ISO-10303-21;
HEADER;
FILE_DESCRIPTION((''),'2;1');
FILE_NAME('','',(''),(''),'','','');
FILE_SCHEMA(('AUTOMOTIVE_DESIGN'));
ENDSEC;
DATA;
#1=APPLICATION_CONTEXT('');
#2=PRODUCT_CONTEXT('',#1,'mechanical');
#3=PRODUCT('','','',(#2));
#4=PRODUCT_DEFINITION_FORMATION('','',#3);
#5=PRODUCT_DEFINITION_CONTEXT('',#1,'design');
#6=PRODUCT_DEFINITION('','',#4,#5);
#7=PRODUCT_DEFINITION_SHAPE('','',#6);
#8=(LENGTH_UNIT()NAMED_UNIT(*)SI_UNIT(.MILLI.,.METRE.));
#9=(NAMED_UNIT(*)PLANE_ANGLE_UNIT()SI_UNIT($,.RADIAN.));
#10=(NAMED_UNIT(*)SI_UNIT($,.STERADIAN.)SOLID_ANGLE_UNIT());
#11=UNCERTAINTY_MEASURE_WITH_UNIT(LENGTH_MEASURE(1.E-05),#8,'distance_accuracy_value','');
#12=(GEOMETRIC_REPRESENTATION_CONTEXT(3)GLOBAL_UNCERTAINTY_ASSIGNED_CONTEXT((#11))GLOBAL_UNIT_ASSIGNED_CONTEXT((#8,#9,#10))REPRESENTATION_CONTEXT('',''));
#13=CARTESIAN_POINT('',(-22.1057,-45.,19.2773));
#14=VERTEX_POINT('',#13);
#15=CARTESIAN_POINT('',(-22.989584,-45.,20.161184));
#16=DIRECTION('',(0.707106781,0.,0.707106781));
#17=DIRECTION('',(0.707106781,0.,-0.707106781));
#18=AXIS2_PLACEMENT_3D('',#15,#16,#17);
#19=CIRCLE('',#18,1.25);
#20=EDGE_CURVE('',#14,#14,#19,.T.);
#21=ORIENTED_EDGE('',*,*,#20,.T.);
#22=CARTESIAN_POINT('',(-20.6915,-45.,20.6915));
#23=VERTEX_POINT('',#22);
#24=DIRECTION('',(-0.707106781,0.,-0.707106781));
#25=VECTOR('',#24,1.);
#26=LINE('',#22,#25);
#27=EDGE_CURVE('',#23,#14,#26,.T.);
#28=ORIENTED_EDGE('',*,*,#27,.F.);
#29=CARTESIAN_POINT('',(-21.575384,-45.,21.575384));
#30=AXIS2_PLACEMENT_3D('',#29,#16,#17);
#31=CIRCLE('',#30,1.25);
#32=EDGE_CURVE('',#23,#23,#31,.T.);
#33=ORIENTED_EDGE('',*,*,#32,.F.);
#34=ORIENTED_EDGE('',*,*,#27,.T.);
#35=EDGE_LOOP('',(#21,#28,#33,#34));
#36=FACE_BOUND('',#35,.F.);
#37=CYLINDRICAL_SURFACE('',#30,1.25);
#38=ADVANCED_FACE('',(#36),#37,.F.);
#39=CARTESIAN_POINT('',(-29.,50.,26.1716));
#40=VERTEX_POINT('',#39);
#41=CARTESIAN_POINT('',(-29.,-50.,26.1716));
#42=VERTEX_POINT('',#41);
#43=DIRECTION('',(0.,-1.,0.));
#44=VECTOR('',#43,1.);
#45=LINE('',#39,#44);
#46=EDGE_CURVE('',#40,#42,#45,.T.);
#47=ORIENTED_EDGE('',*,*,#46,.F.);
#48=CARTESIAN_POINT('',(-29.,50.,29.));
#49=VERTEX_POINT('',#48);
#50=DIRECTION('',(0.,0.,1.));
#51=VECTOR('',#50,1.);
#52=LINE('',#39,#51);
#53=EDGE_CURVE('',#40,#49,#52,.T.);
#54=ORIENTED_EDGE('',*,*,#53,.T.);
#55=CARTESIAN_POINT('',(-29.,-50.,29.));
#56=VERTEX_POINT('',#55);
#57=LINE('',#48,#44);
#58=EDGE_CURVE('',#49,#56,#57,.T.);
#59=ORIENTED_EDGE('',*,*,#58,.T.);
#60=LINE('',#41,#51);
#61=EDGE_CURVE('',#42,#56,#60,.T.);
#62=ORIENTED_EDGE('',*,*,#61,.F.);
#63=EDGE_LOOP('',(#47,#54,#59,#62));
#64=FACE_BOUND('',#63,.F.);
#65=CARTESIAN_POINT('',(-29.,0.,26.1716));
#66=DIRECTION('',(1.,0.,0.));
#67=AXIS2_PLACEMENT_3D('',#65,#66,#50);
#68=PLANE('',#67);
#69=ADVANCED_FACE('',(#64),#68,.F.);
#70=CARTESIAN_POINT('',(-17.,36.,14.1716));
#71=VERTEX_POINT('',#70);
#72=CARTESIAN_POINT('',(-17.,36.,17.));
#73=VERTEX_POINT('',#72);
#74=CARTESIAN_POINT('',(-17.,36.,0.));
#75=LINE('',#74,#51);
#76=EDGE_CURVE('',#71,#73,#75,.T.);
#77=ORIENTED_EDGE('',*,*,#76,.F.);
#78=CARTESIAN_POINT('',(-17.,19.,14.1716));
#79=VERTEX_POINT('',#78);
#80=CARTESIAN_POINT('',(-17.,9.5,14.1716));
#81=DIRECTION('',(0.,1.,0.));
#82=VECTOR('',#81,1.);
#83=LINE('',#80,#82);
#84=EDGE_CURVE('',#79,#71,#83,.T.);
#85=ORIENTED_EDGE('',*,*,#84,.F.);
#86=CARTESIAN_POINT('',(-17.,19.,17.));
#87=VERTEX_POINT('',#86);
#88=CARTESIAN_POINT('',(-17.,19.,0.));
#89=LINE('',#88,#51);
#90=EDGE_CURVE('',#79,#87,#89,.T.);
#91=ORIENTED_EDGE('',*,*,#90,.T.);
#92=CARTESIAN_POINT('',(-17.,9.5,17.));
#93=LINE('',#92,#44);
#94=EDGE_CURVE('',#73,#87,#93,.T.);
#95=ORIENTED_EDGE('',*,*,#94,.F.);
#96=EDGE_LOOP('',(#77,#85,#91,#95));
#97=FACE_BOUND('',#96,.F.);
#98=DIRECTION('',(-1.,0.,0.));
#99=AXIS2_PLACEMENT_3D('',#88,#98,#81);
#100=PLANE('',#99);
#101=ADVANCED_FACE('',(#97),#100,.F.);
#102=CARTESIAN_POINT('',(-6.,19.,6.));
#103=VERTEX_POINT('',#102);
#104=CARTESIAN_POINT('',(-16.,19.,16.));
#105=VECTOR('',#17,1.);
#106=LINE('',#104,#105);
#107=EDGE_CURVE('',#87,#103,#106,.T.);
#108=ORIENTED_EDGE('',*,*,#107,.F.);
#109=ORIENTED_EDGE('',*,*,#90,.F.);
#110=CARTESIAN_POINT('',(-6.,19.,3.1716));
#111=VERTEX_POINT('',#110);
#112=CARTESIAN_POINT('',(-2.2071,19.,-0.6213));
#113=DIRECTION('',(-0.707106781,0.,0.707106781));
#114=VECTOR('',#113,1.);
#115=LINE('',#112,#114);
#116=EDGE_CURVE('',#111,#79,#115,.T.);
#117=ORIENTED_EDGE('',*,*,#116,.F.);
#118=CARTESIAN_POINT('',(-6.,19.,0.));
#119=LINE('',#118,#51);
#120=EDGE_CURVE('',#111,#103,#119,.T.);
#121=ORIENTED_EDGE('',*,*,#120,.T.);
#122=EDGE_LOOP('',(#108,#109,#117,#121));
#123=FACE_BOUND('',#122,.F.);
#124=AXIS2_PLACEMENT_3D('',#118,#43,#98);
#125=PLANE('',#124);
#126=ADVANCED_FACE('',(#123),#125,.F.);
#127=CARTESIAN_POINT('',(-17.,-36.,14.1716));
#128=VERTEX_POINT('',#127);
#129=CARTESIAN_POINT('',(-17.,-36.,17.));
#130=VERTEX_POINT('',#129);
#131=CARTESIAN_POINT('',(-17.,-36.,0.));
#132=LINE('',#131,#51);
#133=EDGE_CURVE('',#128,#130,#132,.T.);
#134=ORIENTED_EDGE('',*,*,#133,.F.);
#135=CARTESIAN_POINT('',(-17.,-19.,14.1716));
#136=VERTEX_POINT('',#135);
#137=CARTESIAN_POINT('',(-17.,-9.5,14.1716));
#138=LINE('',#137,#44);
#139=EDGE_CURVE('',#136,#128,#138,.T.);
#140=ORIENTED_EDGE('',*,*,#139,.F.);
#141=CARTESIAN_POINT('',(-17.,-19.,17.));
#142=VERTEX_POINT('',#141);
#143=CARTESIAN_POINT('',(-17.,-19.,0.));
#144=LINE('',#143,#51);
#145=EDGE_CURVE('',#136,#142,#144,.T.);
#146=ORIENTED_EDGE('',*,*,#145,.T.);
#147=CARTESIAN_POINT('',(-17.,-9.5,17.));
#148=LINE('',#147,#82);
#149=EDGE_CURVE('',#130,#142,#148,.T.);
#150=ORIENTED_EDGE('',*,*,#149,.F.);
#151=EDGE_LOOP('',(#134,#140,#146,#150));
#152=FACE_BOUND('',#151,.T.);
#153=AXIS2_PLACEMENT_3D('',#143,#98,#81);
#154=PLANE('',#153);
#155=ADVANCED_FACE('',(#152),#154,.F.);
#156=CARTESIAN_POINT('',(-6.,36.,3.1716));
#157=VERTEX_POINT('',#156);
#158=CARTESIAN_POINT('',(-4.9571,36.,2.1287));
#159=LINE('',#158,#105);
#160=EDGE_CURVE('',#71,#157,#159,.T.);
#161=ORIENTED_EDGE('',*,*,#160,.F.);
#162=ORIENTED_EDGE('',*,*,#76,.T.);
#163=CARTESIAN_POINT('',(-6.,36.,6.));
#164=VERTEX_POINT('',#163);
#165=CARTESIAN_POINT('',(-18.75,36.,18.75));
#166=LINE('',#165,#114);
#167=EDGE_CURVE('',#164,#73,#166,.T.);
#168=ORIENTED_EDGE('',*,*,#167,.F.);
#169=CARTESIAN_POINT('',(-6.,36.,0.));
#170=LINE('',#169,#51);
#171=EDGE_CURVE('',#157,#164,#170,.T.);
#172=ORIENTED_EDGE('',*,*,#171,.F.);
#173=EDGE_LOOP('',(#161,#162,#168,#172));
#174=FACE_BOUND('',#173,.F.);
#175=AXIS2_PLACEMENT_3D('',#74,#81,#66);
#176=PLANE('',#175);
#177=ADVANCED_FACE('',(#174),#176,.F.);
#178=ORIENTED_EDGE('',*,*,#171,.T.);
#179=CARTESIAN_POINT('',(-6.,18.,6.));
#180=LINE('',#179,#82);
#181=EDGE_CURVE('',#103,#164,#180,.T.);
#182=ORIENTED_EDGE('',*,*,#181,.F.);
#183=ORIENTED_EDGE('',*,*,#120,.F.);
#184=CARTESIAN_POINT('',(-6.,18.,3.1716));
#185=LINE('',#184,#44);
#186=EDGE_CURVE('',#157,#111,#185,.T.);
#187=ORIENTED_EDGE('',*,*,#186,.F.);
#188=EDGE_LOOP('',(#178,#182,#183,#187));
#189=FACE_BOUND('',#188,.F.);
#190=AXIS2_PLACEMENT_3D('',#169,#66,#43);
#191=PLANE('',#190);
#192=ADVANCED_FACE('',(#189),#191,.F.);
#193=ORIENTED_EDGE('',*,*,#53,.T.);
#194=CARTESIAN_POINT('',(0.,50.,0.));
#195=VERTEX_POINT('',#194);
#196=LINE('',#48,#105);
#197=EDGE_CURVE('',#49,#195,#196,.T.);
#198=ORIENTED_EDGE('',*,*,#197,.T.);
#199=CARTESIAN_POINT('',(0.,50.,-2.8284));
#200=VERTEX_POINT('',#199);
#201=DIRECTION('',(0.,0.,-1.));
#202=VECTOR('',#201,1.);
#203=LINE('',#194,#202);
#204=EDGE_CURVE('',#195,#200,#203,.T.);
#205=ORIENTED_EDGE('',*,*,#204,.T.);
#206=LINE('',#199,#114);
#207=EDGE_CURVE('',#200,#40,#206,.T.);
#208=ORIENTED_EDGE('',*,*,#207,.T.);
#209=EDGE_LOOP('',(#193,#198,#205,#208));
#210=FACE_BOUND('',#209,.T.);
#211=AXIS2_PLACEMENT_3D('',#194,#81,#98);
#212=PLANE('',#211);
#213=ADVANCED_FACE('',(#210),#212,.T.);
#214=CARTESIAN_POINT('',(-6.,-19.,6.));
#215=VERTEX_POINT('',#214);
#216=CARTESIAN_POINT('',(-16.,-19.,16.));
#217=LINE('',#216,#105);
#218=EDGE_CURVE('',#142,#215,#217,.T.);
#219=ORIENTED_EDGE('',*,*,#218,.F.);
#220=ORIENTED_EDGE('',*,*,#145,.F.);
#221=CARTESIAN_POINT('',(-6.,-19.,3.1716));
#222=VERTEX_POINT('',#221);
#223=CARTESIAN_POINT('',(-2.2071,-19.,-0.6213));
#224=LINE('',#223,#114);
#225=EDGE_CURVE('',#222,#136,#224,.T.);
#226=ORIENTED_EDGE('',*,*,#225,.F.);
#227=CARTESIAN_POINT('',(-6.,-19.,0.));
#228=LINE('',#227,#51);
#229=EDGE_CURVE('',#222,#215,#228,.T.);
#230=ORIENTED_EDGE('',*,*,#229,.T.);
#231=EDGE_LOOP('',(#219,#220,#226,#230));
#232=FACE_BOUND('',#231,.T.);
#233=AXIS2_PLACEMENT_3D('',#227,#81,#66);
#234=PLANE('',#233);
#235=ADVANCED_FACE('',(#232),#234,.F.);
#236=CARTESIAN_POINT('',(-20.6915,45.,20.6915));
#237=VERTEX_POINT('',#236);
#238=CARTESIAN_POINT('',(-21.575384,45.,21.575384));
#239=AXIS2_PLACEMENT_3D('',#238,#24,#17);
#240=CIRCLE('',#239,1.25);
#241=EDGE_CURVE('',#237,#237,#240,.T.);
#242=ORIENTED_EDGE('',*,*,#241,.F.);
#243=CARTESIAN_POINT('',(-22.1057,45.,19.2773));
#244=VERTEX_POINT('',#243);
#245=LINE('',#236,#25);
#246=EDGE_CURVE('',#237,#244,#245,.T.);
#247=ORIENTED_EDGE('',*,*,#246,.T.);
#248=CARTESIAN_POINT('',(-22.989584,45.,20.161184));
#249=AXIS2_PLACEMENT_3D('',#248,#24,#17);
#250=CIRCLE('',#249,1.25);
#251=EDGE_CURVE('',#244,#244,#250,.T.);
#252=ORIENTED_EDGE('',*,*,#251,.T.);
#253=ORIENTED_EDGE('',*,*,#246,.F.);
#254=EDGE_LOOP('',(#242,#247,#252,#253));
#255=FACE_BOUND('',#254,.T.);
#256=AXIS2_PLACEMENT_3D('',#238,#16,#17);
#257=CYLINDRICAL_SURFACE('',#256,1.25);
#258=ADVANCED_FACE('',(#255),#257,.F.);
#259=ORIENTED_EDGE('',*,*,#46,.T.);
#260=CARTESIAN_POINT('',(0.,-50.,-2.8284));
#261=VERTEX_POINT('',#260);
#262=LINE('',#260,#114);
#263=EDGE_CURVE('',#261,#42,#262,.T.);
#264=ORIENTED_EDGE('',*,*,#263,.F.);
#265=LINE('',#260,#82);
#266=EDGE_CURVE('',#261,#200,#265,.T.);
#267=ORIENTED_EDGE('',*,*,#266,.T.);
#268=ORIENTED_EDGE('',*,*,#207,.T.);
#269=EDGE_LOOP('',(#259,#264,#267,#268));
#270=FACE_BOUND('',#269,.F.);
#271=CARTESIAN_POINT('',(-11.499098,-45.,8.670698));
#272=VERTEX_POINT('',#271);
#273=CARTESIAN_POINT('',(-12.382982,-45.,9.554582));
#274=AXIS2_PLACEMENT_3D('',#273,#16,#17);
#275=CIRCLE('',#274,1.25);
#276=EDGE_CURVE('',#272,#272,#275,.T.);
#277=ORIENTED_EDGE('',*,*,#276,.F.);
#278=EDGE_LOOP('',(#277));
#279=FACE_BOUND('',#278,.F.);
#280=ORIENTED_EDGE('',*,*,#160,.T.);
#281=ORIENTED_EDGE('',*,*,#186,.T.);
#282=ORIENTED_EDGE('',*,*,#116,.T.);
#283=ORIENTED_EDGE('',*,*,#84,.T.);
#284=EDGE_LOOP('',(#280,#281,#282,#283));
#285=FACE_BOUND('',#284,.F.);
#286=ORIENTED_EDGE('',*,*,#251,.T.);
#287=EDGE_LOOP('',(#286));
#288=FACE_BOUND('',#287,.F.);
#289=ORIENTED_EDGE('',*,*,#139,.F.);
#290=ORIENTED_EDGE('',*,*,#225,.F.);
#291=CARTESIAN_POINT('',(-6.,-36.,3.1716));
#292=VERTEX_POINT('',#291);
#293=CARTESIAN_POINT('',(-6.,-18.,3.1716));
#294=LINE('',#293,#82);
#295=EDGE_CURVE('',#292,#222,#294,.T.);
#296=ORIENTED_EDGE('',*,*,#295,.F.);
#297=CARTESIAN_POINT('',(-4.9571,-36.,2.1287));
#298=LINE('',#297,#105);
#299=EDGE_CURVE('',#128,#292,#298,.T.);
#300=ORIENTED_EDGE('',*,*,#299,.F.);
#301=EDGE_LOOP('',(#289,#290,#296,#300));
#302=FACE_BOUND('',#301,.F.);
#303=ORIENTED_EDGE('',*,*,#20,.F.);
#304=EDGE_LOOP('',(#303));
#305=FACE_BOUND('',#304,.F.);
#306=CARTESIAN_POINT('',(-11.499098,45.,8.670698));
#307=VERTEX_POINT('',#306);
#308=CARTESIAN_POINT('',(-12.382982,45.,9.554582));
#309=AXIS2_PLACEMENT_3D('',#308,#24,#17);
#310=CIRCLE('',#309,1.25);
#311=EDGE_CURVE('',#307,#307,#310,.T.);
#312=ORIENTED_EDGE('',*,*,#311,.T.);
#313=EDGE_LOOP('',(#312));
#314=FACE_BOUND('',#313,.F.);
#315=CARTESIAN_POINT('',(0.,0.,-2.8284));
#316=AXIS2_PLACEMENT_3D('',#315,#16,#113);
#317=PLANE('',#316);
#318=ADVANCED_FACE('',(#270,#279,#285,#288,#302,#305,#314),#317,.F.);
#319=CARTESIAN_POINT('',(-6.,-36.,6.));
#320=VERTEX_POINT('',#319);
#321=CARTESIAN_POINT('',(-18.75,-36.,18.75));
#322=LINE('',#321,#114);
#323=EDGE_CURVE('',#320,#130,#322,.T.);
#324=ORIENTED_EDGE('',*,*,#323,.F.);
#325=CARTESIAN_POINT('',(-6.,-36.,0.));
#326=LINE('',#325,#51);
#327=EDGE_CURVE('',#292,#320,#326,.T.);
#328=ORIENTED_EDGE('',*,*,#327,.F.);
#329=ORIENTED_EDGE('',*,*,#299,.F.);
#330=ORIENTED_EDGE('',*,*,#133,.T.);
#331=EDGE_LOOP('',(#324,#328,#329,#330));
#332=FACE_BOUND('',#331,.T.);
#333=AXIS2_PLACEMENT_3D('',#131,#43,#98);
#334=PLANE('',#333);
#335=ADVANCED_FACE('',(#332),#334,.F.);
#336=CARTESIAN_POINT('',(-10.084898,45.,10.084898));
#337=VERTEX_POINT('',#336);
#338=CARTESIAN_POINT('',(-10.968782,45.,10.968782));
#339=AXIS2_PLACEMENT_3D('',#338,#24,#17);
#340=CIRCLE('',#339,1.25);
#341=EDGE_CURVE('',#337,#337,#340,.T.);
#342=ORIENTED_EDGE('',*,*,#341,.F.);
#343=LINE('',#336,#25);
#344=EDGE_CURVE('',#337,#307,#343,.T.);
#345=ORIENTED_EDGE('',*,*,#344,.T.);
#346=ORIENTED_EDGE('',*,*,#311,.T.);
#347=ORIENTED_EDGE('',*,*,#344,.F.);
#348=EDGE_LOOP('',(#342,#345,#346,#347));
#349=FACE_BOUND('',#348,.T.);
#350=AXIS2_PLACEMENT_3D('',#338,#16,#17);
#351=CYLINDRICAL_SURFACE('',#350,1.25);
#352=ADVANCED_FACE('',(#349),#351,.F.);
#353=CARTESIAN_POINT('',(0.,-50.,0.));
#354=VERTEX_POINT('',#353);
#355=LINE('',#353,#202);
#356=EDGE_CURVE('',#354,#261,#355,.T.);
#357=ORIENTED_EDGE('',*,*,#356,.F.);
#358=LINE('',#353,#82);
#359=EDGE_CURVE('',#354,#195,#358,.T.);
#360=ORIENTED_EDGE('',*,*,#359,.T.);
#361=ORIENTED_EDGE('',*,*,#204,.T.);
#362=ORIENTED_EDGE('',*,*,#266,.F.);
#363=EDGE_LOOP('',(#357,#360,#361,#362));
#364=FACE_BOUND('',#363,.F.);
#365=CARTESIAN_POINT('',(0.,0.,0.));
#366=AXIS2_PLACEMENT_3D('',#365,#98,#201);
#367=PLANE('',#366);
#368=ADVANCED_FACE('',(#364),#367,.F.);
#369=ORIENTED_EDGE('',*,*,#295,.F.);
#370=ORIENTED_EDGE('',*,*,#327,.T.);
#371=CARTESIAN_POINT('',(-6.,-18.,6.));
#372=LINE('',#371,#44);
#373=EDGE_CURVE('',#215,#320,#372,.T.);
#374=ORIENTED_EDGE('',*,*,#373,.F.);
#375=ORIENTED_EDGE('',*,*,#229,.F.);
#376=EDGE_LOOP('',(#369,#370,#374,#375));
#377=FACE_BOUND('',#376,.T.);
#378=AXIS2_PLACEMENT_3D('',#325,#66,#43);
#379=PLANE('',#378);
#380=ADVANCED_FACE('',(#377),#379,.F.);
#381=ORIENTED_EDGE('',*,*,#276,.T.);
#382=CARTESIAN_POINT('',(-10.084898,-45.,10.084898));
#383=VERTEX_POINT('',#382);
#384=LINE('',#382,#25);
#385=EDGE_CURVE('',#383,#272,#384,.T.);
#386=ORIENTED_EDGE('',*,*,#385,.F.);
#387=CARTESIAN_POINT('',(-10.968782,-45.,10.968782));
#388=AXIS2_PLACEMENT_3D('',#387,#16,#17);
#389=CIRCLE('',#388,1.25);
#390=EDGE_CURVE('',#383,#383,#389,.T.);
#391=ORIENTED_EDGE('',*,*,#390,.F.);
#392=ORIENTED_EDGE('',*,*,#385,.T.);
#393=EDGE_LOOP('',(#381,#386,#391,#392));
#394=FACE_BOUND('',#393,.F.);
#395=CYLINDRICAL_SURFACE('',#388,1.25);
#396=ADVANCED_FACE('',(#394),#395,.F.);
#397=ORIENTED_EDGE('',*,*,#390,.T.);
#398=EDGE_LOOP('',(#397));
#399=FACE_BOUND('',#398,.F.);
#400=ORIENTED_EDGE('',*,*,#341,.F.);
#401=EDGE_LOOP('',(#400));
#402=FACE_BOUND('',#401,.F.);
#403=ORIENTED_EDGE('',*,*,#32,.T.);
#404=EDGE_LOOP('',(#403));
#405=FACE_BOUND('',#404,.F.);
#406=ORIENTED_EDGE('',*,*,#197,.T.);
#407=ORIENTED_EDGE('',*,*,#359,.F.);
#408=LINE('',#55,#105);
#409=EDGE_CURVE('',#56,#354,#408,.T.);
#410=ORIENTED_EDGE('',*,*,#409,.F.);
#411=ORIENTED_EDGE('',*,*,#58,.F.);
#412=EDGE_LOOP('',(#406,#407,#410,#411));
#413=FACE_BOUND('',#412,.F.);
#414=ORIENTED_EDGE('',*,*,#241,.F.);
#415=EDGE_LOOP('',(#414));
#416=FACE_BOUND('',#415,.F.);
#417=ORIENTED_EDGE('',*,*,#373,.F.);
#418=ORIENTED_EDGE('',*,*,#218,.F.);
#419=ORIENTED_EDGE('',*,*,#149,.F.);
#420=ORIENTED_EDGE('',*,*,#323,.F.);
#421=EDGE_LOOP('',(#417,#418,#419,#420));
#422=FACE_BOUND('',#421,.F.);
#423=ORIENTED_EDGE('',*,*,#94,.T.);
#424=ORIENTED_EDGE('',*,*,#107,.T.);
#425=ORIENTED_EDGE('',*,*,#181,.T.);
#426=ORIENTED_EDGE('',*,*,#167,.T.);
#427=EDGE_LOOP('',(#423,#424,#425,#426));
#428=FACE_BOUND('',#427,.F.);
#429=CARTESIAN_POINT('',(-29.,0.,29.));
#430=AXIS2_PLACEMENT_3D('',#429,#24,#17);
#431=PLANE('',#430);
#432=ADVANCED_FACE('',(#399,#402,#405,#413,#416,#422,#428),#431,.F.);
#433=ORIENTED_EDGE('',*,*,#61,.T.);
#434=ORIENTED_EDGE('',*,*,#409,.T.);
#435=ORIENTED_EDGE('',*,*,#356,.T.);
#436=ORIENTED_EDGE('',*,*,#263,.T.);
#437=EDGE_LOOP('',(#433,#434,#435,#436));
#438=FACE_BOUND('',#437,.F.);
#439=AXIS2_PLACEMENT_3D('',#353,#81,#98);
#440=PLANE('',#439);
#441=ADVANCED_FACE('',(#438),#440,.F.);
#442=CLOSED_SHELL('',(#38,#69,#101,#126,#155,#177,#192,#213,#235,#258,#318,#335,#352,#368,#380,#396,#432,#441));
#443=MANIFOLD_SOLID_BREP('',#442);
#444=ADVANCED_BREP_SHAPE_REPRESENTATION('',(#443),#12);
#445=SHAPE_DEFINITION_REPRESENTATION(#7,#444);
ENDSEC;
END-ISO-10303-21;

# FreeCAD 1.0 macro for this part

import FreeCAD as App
import Part
import Sketcher
from FreeCAD import Vector
Q = App.Units.Quantity


def add_polygon(sketch, points):
    """Adds a closed chain of lines whose ends are joined by coincident constraints."""
    first, n = sketch.GeometryCount, len(points)
    for a, b in zip(points, points[1:] + points[:1]):
        sketch.addGeometry(Part.LineSegment(App.Vector(*a, 0), App.Vector(*b, 0)), False)
    for i in range(n):
        sketch.addConstraint(Sketcher.Constraint("Coincident", first + i, 2, first + (i + 1) % n, 1))

doc = App.newDocument("Part")
body = doc.addObject("PartDesign::Body", "Body")

sketch1 = body.newObject("Sketcher::SketchObject", "Sketch")
sketch1.AttachmentSupport = (doc.getObject("XZ_Plane"), [""])
sketch1.MapMode = "FlatFace"
add_polygon(sketch1, [(-29, 29), (0, 0), (0, -2.8284), (-29, 26.1716)])
sketch1.addConstraint(Sketcher.Constraint("Vertical", 1))
sketch1.addConstraint(Sketcher.Constraint("Vertical", 3))
sketch1.addConstraint(Sketcher.Constraint("Coincident", 0, 2, -1, 1))
sketch1.addConstraint(Sketcher.Constraint("Parallel", 0, 2))
sketch1.addConstraint(Sketcher.Constraint("Angle", 0, Q("-45 deg")))
sketch1.addConstraint(Sketcher.Constraint("DistanceX", 2, 2, -1, 1, Q("29 mm")))
sketch1.addConstraint(Sketcher.Constraint("DistanceY", 1, 2, 1, 1, Q("2.8284 mm")))
pad1 = body.newObject("PartDesign::Pad", "Pad")
pad1.Profile = sketch1
pad1.Length = 100
pad1.Midplane = True

sketch2 = body.newObject("Sketcher::SketchObject", "Sketch001")
sketch2.AttachmentSupport = (doc.getObject("XY_Plane"), [""])
sketch2.MapMode = "FlatFace"
add_polygon(sketch2, [(-6, 36), (-17, 36), (-17, 19), (-6, 19)])
sketch2.addConstraint(Sketcher.Constraint("Horizontal", 0))
sketch2.addConstraint(Sketcher.Constraint("Vertical", 1))
sketch2.addConstraint(Sketcher.Constraint("Horizontal", 2))
sketch2.addConstraint(Sketcher.Constraint("Vertical", 3))
sketch2.addConstraint(Sketcher.Constraint("DistanceX", 0, 2, 0, 1, Q("11 mm")))
sketch2.addConstraint(Sketcher.Constraint("DistanceY", 1, 2, 1, 1, Q("17 mm")))
sketch2.addConstraint(Sketcher.Constraint("DistanceX", 0, 2, -1, 1, Q("17 mm")))
sketch2.addConstraint(Sketcher.Constraint("DistanceY", -1, 1, 0, 2, Q("36 mm")))
pocket1 = body.newObject("PartDesign::Pocket", "Pocket")
pocket1.Profile = sketch2
pocket1.Length = 17
pocket1.Reversed = True
doc.recompute()

mirrored = body.newObject("PartDesign::Mirrored", "Mirrored")
mirrored.Originals = [pocket1]
mirrored.MirrorPlane = (doc.getObject("XZ_Plane"), [""])
body.Tip = mirrored

sketch3 = body.newObject("Sketcher::SketchObject", "Sketch002")
sketch3.Placement = App.Placement(Vector(0, -50, 0), App.Rotation(Vector(0.707106781, 0, -0.707106781), Vector(0, 0.999999999, 0), Vector(0.707106781, 0, 0.707106781), "ZXY"))
sketch3.addGeometry(Part.Circle(Vector(-30.5122, 5, 0), Vector(0, 0, 1), 1.25), False)
sketch3.addGeometry(Part.Circle(Vector(-15.5122, 5, 0), Vector(0, 0, 1), 1.25), False)
sketch3.addConstraint(Sketcher.Constraint("Equal", 0, 1))
sketch3.addConstraint(Sketcher.Constraint("Horizontal", 0, 3, 1, 3))
sketch3.addConstraint(Sketcher.Constraint("Diameter", 0, Q("2.5 mm")))
sketch3.addConstraint(Sketcher.Constraint("DistanceY", -1, 1, 0, 3, Q("5 mm")))
sketch3.addConstraint(Sketcher.Constraint("DistanceX", 0, 3, 1, 3, Q("15 mm")))
sketch3.addConstraint(Sketcher.Constraint("DistanceX", 0, 3, -1, 1, Q("30.5122 mm")))
pocket2 = body.newObject("PartDesign::Pocket", "Pocket001")
pocket2.Profile = sketch3
pocket2.Type = "UpToFirst"
doc.recompute()

mirrored2 = body.newObject("PartDesign::Mirrored", "Mirrored001")
mirrored2.Originals = [pocket2]
mirrored2.MirrorPlane = (doc.getObject("XZ_Plane"), [""])
body.Tip = mirrored2

doc.recompute()
